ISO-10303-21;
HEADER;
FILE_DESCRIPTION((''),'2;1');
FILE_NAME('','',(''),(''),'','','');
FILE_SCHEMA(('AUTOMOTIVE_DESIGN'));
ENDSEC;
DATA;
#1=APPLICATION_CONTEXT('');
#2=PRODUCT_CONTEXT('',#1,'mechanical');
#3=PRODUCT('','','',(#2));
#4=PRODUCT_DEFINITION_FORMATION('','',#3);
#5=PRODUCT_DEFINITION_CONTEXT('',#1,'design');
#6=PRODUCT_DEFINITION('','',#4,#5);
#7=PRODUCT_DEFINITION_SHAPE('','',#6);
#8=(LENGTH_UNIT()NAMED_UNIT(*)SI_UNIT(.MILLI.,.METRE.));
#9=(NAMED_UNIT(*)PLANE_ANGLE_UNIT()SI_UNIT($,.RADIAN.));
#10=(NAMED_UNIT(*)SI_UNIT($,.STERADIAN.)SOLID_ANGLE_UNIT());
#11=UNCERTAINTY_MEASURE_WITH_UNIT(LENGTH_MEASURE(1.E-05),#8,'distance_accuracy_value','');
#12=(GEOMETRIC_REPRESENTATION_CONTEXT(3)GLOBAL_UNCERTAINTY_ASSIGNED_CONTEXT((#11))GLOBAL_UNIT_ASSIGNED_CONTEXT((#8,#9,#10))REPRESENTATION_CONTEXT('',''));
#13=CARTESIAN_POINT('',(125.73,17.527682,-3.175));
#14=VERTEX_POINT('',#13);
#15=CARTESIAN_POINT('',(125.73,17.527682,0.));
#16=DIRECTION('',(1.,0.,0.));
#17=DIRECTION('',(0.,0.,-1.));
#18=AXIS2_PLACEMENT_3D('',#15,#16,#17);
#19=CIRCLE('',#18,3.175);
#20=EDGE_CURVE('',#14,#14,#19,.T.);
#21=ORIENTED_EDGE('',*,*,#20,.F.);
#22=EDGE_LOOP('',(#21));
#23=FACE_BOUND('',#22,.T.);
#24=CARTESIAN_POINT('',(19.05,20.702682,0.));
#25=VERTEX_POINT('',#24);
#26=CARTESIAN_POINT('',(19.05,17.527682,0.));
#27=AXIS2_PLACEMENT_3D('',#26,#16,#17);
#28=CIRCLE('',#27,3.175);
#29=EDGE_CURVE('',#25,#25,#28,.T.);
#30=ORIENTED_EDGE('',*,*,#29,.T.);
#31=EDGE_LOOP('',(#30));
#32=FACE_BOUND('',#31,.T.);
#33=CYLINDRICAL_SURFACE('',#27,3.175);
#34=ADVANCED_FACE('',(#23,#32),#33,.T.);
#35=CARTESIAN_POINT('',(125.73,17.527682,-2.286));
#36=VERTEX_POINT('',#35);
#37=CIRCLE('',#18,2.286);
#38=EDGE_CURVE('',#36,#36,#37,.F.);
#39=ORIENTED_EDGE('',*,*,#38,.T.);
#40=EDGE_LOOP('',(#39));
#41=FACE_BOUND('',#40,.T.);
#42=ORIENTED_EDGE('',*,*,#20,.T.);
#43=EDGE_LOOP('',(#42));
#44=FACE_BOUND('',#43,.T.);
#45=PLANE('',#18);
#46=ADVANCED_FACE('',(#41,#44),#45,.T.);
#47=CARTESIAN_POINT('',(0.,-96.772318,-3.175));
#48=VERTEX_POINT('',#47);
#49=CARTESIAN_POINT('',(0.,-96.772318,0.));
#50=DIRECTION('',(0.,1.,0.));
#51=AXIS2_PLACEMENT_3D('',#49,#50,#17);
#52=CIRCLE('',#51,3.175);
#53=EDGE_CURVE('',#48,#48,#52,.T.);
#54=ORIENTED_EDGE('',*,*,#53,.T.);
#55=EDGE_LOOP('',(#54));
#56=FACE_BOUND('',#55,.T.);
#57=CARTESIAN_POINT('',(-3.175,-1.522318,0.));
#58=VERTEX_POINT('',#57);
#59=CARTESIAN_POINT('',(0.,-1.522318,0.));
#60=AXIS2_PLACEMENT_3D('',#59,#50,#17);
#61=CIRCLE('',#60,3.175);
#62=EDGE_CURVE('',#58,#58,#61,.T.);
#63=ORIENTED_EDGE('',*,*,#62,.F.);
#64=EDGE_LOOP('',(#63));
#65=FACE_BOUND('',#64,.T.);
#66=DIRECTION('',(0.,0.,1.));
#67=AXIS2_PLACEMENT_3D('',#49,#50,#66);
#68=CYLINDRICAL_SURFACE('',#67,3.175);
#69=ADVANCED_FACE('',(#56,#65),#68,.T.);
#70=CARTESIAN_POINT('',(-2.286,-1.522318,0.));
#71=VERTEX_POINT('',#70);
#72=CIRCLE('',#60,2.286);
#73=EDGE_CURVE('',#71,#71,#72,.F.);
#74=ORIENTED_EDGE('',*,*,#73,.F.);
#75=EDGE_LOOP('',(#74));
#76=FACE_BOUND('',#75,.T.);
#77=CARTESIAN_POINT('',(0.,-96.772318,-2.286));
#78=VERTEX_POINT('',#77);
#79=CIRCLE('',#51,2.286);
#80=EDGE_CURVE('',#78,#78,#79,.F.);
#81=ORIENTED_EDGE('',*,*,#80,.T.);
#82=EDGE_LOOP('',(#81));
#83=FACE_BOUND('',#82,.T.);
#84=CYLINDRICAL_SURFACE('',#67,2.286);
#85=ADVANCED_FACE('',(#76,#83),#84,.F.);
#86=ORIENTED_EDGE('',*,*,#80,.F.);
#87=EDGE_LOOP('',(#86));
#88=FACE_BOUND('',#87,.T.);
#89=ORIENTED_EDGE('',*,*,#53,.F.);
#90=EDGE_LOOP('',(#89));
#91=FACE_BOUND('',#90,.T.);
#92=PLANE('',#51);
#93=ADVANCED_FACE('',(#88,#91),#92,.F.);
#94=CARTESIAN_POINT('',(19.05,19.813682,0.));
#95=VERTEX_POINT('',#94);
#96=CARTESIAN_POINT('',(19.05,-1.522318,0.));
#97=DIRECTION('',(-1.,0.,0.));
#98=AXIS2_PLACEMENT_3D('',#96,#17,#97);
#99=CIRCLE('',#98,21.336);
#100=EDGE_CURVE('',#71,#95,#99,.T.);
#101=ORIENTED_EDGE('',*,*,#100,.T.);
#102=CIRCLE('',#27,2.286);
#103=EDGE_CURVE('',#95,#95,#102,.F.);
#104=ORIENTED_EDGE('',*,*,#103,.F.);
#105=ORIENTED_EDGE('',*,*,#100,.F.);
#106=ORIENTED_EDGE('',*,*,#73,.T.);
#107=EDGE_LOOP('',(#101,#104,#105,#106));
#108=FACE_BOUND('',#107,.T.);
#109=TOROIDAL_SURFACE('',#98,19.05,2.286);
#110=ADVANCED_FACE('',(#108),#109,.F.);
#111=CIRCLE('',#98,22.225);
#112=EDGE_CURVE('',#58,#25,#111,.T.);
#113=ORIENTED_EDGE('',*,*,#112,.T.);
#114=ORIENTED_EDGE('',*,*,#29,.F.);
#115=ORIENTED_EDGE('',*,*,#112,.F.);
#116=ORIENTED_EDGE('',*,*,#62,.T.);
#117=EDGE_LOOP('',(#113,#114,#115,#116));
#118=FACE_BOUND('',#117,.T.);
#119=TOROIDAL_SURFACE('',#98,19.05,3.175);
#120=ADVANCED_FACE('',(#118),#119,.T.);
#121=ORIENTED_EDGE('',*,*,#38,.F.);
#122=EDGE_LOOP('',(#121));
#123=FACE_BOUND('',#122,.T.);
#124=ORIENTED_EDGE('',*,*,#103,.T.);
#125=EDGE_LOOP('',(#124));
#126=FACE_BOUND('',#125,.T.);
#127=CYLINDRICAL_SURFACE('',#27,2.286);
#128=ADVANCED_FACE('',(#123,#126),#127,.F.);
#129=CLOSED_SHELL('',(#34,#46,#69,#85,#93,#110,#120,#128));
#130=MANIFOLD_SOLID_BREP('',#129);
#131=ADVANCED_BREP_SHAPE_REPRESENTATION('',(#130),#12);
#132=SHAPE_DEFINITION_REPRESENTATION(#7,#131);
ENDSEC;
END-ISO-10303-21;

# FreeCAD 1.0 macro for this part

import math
import FreeCAD as App
import Part
import Sketcher
Q = App.Units.Quantity

doc = App.newDocument("Part")
params = doc.addObject("Spreadsheet::Sheet", "Params")
for row, (alias, value) in enumerate([
    ("sketch1_diameter", "0.25 in"),
    ("sketch1_diameter2", "0.18 in"),
    ("sketch2_radius", "0.75 in"),
    ("sketch2_width", "4.2 in"),
    ("sketch2_height", "3.75 in"),
], start=1):
    params.set(f"A{row}", alias)
    params.set(f"B{row}", "=" + value)
    params.setAlias(f"B{row}", alias)

body = doc.addObject("PartDesign::Body", "Body")

sketch1 = body.newObject("Sketcher::SketchObject", "Sketch")
sketch1.AttachmentSupport = (doc.getObject("YZ_Plane"), [""])
sketch1.MapMode = "FlatFace"
sketch1.AttachmentOffset = App.Placement(App.Vector(0, 0, 4.95 * 25.4), App.Rotation())
sketch1.addGeometry([
    Part.Circle(App.Vector(17.5, 0, 0), App.Vector(0, 0, 1), 3.2),
    Part.Circle(App.Vector(17.5, 0, 0), App.Vector(0, 0, 1), 2.3),
], False)
sketch1.addConstraint([
    Sketcher.Constraint("Coincident", 1, 3, 0, 3),
    Sketcher.Constraint("PointOnObject", 0, 3, -1),
    Sketcher.Constraint("Diameter", 0, Q("0.25 in")),
    Sketcher.Constraint("Diameter", 1, Q("0.18 in")),
    Sketcher.Constraint("DistanceX", -1, 1, 0, 3, Q("17.527682 mm")),
])
sketch1.setExpression("Constraints[2]", "Params.sketch1_diameter")
sketch1.setExpression("Constraints[3]", "Params.sketch1_diameter2")

sketch2 = body.newObject("Sketcher::SketchObject", "Sketch001")
sketch2.AttachmentSupport = (doc.getObject("XY_Plane"), [""])
sketch2.MapMode = "FlatFace"
sketch2.addGeometry([
    Part.LineSegment(App.Vector(0, -97, 0), App.Vector(0, -2, 0)),
    Part.ArcOfCircle(Part.Circle(App.Vector(19, -2, 0), App.Vector(0, 0, 1), 19), math.radians(90), math.radians(180)),
    Part.LineSegment(App.Vector(19, 18, 0), App.Vector(126, 18, 0)),
], False)
sketch2.addConstraint([
    Sketcher.Constraint("Tangent", 0, 2, 1, 2),
    Sketcher.Constraint("Tangent", 1, 1, 2, 1),
    Sketcher.Constraint("Vertical", 0),
    Sketcher.Constraint("Horizontal", 2),
    Sketcher.Constraint("PointOnObject", 0, 1, -2),
    Sketcher.Constraint("Radius", 1, Q("0.75 in")),
    Sketcher.Constraint("DistanceX", 2, 1, 2, 2, Q("4.2 in")),
    Sketcher.Constraint("DistanceY", 0, 1, 0, 2, Q("3.75 in")),
    Sketcher.Constraint("DistanceY", 1, 3, -1, 1, Q("1.522318 mm")),
])
sketch2.setExpression("Constraints[5]", "Params.sketch2_radius")
sketch2.setExpression("Constraints[6]", "Params.sketch2_width")
sketch2.setExpression("Constraints[7]", "Params.sketch2_height")
doc.recompute()

additivepipe = body.newObject("PartDesign::AdditivePipe", "AdditivePipe")
additivepipe.Profile = sketch1
additivepipe.Spine = (sketch2, ["Edge1", "Edge2", "Edge3"])

doc.recompute()
